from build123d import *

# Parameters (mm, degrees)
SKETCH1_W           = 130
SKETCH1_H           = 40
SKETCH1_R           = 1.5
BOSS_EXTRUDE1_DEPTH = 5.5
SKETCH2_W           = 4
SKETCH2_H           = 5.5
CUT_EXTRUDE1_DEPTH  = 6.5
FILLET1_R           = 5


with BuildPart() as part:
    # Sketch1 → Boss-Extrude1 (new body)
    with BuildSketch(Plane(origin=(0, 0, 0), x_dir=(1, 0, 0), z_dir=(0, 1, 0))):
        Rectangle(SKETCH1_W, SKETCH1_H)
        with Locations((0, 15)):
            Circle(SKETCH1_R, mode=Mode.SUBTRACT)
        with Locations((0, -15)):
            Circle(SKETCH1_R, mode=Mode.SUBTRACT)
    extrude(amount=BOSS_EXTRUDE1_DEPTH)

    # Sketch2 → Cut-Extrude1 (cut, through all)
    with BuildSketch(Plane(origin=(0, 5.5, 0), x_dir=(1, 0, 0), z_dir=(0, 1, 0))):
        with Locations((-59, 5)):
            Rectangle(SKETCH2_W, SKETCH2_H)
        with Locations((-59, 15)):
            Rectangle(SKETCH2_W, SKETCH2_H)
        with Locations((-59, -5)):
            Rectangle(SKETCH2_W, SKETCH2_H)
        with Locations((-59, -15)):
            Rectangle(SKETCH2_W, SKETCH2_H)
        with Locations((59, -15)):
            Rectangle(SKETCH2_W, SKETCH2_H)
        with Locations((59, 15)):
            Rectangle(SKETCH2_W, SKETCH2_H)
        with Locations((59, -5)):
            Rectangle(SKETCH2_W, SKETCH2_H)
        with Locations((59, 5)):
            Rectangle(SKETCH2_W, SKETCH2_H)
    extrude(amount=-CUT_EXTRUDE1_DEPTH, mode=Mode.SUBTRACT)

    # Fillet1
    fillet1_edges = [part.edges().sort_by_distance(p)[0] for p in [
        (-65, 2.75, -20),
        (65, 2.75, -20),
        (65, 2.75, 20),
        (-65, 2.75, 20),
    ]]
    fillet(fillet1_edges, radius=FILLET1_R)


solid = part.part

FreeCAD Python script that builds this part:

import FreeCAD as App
import Part
import Sketcher
Q = App.Units.Quantity


def edges_at(feature, points):
    """Names of the edges that pass closest to the given points."""
    edges = feature.Shape.Edges
    near = lambda p: min(range(len(edges)), key=lambda i: edges[i].distToShape(Part.Vertex(*p))[0])
    return sorted({f"Edge{near(p) + 1}" for p in points})

doc = App.newDocument("Part")
body = doc.addObject("PartDesign::Body", "Body")

sketch1 = body.newObject("Sketcher::SketchObject", "Sketch")
sketch1.AttachmentSupport = (doc.getObject("XZ_Plane"), [""])
sketch1.MapMode = "FlatFace"
sketch1.addGeometry([
    Part.LineSegment(App.Vector(-65, -20, 0), App.Vector(-65, 20, 0)),
    Part.LineSegment(App.Vector(-65, 20, 0), App.Vector(65, 20, 0)),
    Part.LineSegment(App.Vector(65, 20, 0), App.Vector(65, -20, 0)),
    Part.LineSegment(App.Vector(65, -20, 0), App.Vector(-65, -20, 0)),
    Part.Circle(App.Vector(0, 15, 0), App.Vector(0, 0, 1), 1.5),
    Part.Circle(App.Vector(0, -15, 0), App.Vector(0, 0, 1), 1.5),
], False)
sketch1.addConstraint([
    Sketcher.Constraint("Coincident", 0, 2, 1, 1),
    Sketcher.Constraint("Coincident", 1, 2, 2, 1),
    Sketcher.Constraint("Coincident", 2, 2, 3, 1),
    Sketcher.Constraint("Coincident", 3, 2, 0, 1),
    Sketcher.Constraint("Vertical", 0),
    Sketcher.Constraint("Horizontal", 1),
    Sketcher.Constraint("Vertical", 2),
    Sketcher.Constraint("Horizontal", 3),
    Sketcher.Constraint("Equal", 4, 5),
    Sketcher.Constraint("Symmetric", 4, 3, 5, 3, -1, 1),
    Sketcher.Constraint("Symmetric", 0, 2, 2, 2, -1, 1),
    Sketcher.Constraint("PointOnObject", 4, 3, -2),
    Sketcher.Constraint("Diameter", 4, Q("3 mm")),
    Sketcher.Constraint("DistanceX", 1, 1, 1, 2, Q("130 mm")),
    Sketcher.Constraint("DistanceY", 0, 1, 0, 2, Q("40 mm")),
    Sketcher.Constraint("DistanceY", -1, 1, 4, 3, Q("15 mm")),
])
pad1 = body.newObject("PartDesign::Pad", "Pad")
pad1.Profile = sketch1
pad1.Length = 5.5
pad1.Reversed = True

sketch2 = body.newObject("Sketcher::SketchObject", "Sketch001")
sketch2.AttachmentSupport = (doc.getObject("XZ_Plane"), [""])
sketch2.MapMode = "FlatFace"
sketch2.AttachmentOffset = App.Placement(App.Vector(0, 0, -5.5), App.Rotation())
sketch2.addGeometry([
    Part.LineSegment(App.Vector(-61, -7.8, 0), App.Vector(-61, -2.2, 0)),
    Part.LineSegment(App.Vector(-61, -2.2, 0), App.Vector(-57, -2.2, 0)),
    Part.LineSegment(App.Vector(-57, -2.2, 0), App.Vector(-57, -7.8, 0)),
    Part.LineSegment(App.Vector(-57, -7.8, 0), App.Vector(-61, -7.8, 0)),
    Part.LineSegment(App.Vector(-61, -17.8, 0), App.Vector(-61, -12.2, 0)),
    Part.LineSegment(App.Vector(-61, -12.2, 0), App.Vector(-57, -12.2, 0)),
    Part.LineSegment(App.Vector(-57, -12.2, 0), App.Vector(-57, -17.8, 0)),
    Part.LineSegment(App.Vector(-57, -17.8, 0), App.Vector(-61, -17.8, 0)),
    Part.LineSegment(App.Vector(-61, 2.2, 0), App.Vector(-61, 7.8, 0)),
    Part.LineSegment(App.Vector(-61, 7.8, 0), App.Vector(-57, 7.8, 0)),
    Part.LineSegment(App.Vector(-57, 7.8, 0), App.Vector(-57, 2.2, 0)),
    Part.LineSegment(App.Vector(-57, 2.2, 0), App.Vector(-61, 2.2, 0)),
    Part.LineSegment(App.Vector(-61, 12.2, 0), App.Vector(-61, 17.8, 0)),
    Part.LineSegment(App.Vector(-61, 17.8, 0), App.Vector(-57, 17.8, 0)),
    Part.LineSegment(App.Vector(-57, 17.8, 0), App.Vector(-57, 12.2, 0)),
    Part.LineSegment(App.Vector(-57, 12.2, 0), App.Vector(-61, 12.2, 0)),
    Part.LineSegment(App.Vector(57, 12.2, 0), App.Vector(57, 17.8, 0)),
    Part.LineSegment(App.Vector(57, 17.8, 0), App.Vector(61, 17.8, 0)),
    Part.LineSegment(App.Vector(61, 17.8, 0), App.Vector(61, 12.2, 0)),
    Part.LineSegment(App.Vector(61, 12.2, 0), App.Vector(57, 12.2, 0)),
    Part.LineSegment(App.Vector(57, -17.8, 0), App.Vector(57, -12.2, 0)),
    Part.LineSegment(App.Vector(57, -12.2, 0), App.Vector(61, -12.2, 0)),
    Part.LineSegment(App.Vector(61, -12.2, 0), App.Vector(61, -17.8, 0)),
    Part.LineSegment(App.Vector(61, -17.8, 0), App.Vector(57, -17.8, 0)),
    Part.LineSegment(App.Vector(57, 2.2, 0), App.Vector(57, 7.8, 0)),
    Part.LineSegment(App.Vector(57, 7.8, 0), App.Vector(61, 7.8, 0)),
    Part.LineSegment(App.Vector(61, 7.8, 0), App.Vector(61, 2.2, 0)),
    Part.LineSegment(App.Vector(61, 2.2, 0), App.Vector(57, 2.2, 0)),
    Part.LineSegment(App.Vector(57, -7.8, 0), App.Vector(57, -2.2, 0)),
    Part.LineSegment(App.Vector(57, -2.2, 0), App.Vector(61, -2.2, 0)),
    Part.LineSegment(App.Vector(61, -2.2, 0), App.Vector(61, -7.8, 0)),
    Part.LineSegment(App.Vector(61, -7.8, 0), App.Vector(57, -7.8, 0)),
], False)
sketch2.addConstraint([
    Sketcher.Constraint("Coincident", 0, 2, 1, 1),
    Sketcher.Constraint("Coincident", 1, 2, 2, 1),
    Sketcher.Constraint("Coincident", 2, 2, 3, 1),
    Sketcher.Constraint("Coincident", 3, 2, 0, 1),
    Sketcher.Constraint("Coincident", 4, 2, 5, 1),
    Sketcher.Constraint("Coincident", 5, 2, 6, 1),
    Sketcher.Constraint("Coincident", 6, 2, 7, 1),
    Sketcher.Constraint("Coincident", 7, 2, 4, 1),
    Sketcher.Constraint("Coincident", 8, 2, 9, 1),
    Sketcher.Constraint("Coincident", 9, 2, 10, 1),
    Sketcher.Constraint("Coincident", 10, 2, 11, 1),
    Sketcher.Constraint("Coincident", 11, 2, 8, 1),
    Sketcher.Constraint("Coincident", 12, 2, 13, 1),
    Sketcher.Constraint("Coincident", 13, 2, 14, 1),
    Sketcher.Constraint("Coincident", 14, 2, 15, 1),
    Sketcher.Constraint("Coincident", 15, 2, 12, 1),
    Sketcher.Constraint("Coincident", 16, 2, 17, 1),
    Sketcher.Constraint("Coincident", 17, 2, 18, 1),
    Sketcher.Constraint("Coincident", 18, 2, 19, 1),
    Sketcher.Constraint("Coincident", 19, 2, 16, 1),
    Sketcher.Constraint("Coincident", 20, 2, 21, 1),
    Sketcher.Constraint("Coincident", 21, 2, 22, 1),
    Sketcher.Constraint("Coincident", 22, 2, 23, 1),
    Sketcher.Constraint("Coincident", 23, 2, 20, 1),
    Sketcher.Constraint("Coincident", 24, 2, 25, 1),
    Sketcher.Constraint("Coincident", 25, 2, 26, 1),
    Sketcher.Constraint("Coincident", 26, 2, 27, 1),
    Sketcher.Constraint("Coincident", 27, 2, 24, 1),
    Sketcher.Constraint("Coincident", 28, 2, 29, 1),
    Sketcher.Constraint("Coincident", 29, 2, 30, 1),
    Sketcher.Constraint("Coincident", 30, 2, 31, 1),
    Sketcher.Constraint("Coincident", 31, 2, 28, 1),
    Sketcher.Constraint("Vertical", 0),
    Sketcher.Constraint("Horizontal", 1),
    Sketcher.Constraint("Vertical", 2),
    Sketcher.Constraint("Horizontal", 3),
    Sketcher.Constraint("Vertical", 4),
    Sketcher.Constraint("Horizontal", 5),
    Sketcher.Constraint("Vertical", 6),
    Sketcher.Constraint("Horizontal", 7),
    Sketcher.Constraint("Vertical", 8),
    Sketcher.Constraint("Horizontal", 9),
    Sketcher.Constraint("Vertical", 10),
    Sketcher.Constraint("Horizontal", 11),
    Sketcher.Constraint("Vertical", 12),
    Sketcher.Constraint("Horizontal", 13),
    Sketcher.Constraint("Vertical", 14),
    Sketcher.Constraint("Horizontal", 15),
    Sketcher.Constraint("Vertical", 16),
    Sketcher.Constraint("Horizontal", 17),
    Sketcher.Constraint("Vertical", 18),
    Sketcher.Constraint("Horizontal", 19),
    Sketcher.Constraint("Vertical", 20),
    Sketcher.Constraint("Horizontal", 21),
    Sketcher.Constraint("Vertical", 22),
    Sketcher.Constraint("Horizontal", 23),
    Sketcher.Constraint("Vertical", 24),
    Sketcher.Constraint("Horizontal", 25),
    Sketcher.Constraint("Vertical", 26),
    Sketcher.Constraint("Horizontal", 27),
    Sketcher.Constraint("Vertical", 28),
    Sketcher.Constraint("Horizontal", 29),
    Sketcher.Constraint("Vertical", 30),
    Sketcher.Constraint("Horizontal", 31),
    Sketcher.Constraint("Symmetric", 6, 2, 16, 2, -1, 1),
    Sketcher.Constraint("Symmetric", 4, 2, 18, 2, -1, 1),
    Sketcher.Constraint("Symmetric", 14, 2, 20, 2, -1, 1),
    Sketcher.Constraint("Symmetric", 12, 2, 22, 2, -1, 1),
    Sketcher.Constraint("Symmetric", 2, 2, 24, 2, -1, 1),
    Sketcher.Constraint("Symmetric", 0, 2, 26, 2, -1, 1),
    Sketcher.Constraint("Symmetric", 10, 2, 28, 2, -1, 1),
    Sketcher.Constraint("Symmetric", 8, 2, 30, 2, -1, 1),
    Sketcher.Constraint("Symmetric", 13, 2, 16, 2, -2),
    Sketcher.Constraint("Symmetric", 15, 2, 18, 2, -2),
    Sketcher.Constraint("Symmetric", 9, 2, 24, 2, -2),
    Sketcher.Constraint("Symmetric", 11, 2, 26, 2, -2),
    Sketcher.Constraint("Vertical", 3, 2, 4, 2),
    Sketcher.Constraint("Vertical", 2, 2, 5, 2),
    Sketcher.Constraint("Equal", 2, 4),
    Sketcher.Constraint("DistanceX", 1, 1, 1, 2, Q("4 mm")),
    Sketcher.Constraint("DistanceY", 0, 1, 0, 2, Q("5.5 mm")),
    Sketcher.Constraint("DistanceX", 0, 2, -1, 1, Q("61 mm")),
    Sketcher.Constraint("DistanceY", 4, 2, 0, 2, Q("10 mm")),
    Sketcher.Constraint("DistanceY", 0, 2, 8, 2, Q("10 mm")),
])
pocket1 = body.newObject("PartDesign::Pocket", "Pocket")
pocket1.Profile = sketch2
pocket1.Type = "ThroughAll"
pocket1.Reversed = True
doc.recompute()

fillet = body.newObject("PartDesign::Fillet", "Fillet")
fillet.Base = (pocket1, edges_at(pocket1, [
    (-65, 2.75, -20),
    (65, 2.75, -20),
    (65, 2.75, 20),
    (-65, 2.75, 20),
]))
fillet.Radius = 5

doc.recompute()
